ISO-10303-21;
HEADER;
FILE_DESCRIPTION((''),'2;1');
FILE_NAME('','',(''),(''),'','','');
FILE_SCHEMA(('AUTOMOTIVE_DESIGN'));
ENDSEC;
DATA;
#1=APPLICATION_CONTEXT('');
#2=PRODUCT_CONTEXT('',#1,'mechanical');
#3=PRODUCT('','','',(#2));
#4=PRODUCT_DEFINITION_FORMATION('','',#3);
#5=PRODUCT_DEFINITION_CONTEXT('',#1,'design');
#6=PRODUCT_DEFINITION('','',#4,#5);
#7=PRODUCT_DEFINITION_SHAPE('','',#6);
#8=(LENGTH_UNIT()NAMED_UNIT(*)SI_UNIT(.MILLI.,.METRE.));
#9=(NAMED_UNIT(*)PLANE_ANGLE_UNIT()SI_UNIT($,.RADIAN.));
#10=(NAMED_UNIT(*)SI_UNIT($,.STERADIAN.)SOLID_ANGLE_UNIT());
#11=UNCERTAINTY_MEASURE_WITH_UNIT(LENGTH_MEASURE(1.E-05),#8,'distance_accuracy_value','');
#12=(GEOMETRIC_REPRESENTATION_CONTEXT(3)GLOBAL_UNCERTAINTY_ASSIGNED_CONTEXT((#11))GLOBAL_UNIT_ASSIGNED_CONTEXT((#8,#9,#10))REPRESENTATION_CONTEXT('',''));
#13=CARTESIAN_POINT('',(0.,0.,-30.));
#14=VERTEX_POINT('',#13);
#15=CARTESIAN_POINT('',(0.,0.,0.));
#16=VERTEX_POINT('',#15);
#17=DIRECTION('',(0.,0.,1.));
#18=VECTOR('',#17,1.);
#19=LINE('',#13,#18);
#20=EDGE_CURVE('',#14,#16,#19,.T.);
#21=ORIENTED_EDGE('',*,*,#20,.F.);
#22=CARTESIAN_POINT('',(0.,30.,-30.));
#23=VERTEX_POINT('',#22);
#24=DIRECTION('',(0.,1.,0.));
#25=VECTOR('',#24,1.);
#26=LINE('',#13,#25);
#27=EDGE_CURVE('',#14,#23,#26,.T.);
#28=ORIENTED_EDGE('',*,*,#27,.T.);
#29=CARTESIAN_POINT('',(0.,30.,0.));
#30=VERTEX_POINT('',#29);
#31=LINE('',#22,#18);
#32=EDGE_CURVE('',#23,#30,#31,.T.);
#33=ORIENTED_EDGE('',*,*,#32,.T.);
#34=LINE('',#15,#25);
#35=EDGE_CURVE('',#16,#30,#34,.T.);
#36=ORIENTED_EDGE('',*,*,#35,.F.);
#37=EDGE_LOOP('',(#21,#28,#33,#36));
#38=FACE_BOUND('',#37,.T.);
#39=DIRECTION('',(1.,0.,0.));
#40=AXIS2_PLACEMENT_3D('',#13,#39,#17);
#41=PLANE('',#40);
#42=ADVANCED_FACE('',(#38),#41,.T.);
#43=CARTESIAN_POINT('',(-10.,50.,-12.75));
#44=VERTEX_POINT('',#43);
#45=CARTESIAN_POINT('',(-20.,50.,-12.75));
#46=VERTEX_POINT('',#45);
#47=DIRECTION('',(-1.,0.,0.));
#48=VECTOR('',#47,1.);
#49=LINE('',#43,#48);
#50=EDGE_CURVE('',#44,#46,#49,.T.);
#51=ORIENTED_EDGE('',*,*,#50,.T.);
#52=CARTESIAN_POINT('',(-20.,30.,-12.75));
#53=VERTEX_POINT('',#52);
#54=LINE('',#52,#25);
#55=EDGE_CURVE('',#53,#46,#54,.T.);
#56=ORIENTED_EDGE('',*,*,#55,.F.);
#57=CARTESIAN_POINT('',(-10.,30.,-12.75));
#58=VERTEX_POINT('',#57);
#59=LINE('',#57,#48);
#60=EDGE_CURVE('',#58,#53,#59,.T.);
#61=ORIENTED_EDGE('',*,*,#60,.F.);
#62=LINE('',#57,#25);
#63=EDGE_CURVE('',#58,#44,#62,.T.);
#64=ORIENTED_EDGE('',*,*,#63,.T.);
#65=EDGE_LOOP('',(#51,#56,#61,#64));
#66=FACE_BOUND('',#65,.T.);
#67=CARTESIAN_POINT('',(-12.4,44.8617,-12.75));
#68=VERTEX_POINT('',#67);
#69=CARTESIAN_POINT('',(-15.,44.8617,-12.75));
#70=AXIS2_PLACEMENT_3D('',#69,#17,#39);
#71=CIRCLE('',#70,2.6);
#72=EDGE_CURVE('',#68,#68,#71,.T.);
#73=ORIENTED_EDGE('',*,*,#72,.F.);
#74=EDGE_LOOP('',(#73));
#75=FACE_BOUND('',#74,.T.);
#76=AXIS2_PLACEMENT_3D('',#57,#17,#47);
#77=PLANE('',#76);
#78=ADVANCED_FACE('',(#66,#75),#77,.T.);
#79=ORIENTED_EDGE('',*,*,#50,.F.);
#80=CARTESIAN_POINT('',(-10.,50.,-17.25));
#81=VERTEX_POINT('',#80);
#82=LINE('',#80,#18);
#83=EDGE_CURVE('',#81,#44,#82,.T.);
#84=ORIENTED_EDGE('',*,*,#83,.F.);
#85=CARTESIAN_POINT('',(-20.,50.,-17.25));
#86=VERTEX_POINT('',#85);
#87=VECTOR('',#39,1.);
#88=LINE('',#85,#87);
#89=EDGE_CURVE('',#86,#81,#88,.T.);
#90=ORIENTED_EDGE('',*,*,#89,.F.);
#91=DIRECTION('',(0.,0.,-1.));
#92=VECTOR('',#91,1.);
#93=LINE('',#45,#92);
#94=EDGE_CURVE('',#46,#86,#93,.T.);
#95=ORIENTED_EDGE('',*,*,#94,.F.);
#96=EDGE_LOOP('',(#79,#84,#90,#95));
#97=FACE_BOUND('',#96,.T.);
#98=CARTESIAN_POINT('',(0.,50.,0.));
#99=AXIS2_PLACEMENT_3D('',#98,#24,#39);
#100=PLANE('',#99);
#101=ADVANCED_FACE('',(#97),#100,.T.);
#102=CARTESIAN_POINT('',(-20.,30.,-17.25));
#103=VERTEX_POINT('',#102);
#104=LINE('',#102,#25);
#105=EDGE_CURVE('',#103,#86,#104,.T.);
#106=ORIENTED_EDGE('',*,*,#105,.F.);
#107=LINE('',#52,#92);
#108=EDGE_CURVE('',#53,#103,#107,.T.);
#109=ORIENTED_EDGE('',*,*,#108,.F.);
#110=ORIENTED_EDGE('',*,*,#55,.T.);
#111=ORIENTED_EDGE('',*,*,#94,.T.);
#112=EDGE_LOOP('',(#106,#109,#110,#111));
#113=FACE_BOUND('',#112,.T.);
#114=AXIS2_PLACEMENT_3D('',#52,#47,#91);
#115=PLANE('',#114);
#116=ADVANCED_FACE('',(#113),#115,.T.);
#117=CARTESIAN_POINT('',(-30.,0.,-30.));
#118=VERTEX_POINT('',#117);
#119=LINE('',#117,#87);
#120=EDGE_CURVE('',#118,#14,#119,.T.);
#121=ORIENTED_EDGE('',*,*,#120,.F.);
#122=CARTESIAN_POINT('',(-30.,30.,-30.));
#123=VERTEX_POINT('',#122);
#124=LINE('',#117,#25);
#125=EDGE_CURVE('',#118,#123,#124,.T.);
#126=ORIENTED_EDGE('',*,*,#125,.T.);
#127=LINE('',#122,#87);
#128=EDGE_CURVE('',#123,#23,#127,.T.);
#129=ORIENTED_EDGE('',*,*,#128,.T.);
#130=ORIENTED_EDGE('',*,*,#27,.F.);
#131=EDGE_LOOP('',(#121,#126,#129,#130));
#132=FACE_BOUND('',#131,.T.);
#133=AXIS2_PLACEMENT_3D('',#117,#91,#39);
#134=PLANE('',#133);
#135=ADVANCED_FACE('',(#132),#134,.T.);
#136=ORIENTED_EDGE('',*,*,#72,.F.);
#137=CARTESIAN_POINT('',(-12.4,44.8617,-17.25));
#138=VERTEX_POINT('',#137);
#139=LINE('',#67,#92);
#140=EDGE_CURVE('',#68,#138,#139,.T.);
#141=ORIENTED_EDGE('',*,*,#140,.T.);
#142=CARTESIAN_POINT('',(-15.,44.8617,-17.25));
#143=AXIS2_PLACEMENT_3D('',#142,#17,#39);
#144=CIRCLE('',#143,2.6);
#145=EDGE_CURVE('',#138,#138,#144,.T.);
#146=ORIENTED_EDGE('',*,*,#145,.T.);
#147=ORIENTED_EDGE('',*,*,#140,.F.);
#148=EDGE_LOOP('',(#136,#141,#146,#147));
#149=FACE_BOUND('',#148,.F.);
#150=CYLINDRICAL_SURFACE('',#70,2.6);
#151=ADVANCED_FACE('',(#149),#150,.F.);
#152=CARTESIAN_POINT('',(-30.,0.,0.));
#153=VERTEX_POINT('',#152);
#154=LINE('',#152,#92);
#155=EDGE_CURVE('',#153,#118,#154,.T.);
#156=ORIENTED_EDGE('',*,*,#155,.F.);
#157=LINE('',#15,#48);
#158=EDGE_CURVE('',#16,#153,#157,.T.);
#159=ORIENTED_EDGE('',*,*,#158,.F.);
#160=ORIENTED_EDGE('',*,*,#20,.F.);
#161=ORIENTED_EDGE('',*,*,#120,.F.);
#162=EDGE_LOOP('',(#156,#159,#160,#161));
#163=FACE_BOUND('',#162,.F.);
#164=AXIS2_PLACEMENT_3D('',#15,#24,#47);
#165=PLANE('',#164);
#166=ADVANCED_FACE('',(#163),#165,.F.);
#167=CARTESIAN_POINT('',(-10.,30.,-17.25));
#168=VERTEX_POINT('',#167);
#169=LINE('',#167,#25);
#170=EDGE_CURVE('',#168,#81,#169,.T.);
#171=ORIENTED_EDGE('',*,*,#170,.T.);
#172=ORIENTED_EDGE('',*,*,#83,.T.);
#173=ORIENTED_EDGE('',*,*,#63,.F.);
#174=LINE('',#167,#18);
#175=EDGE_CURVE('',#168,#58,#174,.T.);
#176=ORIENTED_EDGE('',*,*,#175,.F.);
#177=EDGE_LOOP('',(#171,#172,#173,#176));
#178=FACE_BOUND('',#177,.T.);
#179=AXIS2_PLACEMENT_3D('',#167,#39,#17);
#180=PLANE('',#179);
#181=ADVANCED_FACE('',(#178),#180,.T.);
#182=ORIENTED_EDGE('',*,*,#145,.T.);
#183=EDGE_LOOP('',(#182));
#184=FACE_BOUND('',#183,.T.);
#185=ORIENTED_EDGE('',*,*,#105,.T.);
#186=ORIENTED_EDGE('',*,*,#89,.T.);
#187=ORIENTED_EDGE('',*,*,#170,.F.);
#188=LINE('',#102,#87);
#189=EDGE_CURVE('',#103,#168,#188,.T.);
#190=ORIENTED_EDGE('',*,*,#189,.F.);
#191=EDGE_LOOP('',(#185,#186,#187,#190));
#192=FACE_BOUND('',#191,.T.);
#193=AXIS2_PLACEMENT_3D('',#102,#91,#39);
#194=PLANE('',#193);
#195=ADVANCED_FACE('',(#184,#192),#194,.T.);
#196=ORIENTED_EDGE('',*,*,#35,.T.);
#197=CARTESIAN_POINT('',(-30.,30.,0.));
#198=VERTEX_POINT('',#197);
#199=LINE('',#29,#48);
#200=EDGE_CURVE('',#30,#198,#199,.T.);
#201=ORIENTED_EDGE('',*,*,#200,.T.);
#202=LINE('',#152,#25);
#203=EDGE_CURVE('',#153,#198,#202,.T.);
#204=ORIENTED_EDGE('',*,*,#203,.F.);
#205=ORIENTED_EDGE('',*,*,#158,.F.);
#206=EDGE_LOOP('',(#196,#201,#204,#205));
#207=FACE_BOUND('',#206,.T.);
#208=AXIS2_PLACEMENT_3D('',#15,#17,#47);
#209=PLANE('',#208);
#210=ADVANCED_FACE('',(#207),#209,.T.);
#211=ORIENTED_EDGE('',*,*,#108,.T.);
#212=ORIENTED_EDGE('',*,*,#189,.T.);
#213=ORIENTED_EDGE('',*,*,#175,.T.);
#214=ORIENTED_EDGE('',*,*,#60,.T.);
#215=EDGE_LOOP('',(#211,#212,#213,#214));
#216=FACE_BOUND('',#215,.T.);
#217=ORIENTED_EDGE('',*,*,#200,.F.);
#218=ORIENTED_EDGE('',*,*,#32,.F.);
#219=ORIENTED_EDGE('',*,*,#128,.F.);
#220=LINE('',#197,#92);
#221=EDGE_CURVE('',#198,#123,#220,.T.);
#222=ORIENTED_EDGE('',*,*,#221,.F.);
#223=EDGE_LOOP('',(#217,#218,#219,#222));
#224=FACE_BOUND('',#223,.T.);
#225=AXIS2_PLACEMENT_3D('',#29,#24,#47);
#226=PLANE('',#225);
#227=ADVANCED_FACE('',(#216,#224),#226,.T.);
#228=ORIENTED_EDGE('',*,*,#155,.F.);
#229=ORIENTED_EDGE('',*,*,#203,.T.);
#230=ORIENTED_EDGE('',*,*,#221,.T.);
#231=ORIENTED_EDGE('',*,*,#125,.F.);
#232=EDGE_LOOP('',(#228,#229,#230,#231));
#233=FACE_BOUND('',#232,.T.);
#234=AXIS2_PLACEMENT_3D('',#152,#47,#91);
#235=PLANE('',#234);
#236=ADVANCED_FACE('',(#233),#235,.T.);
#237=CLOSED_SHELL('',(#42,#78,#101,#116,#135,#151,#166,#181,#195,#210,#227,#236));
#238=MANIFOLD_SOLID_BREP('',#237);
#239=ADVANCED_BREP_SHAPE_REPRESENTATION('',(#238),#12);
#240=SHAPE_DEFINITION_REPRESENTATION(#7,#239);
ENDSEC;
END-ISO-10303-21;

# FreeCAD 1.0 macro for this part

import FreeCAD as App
import Part
import Sketcher


def add_polygon(sketch, points):
    """Adds a closed chain of lines whose ends are joined by coincident constraints."""
    first, n = sketch.GeometryCount, len(points)
    for a, b in zip(points, points[1:] + points[:1]):
        sketch.addGeometry(Part.LineSegment(App.Vector(*a, 0), App.Vector(*b, 0)), False)
    for i in range(n):
        sketch.addConstraint(Sketcher.Constraint("Coincident", first + i, 2, first + (i + 1) % n, 1))

doc = App.newDocument("Part")
params = doc.addObject("Spreadsheet::Sheet", "Params")
for row, (alias, value) in enumerate([
    ("sketch1_width", "30 mm"),
    ("pad1_length", "30 mm"),
    ("sketch2_width", "10 mm"),
    ("sketch2_height", "4.5 mm"),
    ("pad2_length", "20 mm"),
    ("sketch3_diameter", "5.2 mm"),
    ("pocket1_length", "20 mm"),
], start=1):
    params.set(f"A{row}", alias)
    params.set(f"B{row}", "=" + value)
    params.setAlias(f"B{row}", alias)

body = doc.addObject("PartDesign::Body", "Body")

# Sketch on XZ plane
sketch1 = body.newObject("Sketcher::SketchObject", "Sketch")
sketch1.AttachmentSupport = (doc.getObject("XZ_Plane"), [""])
sketch1.MapMode = "FlatFace"
add_polygon(sketch1, [(-30, 0), (0, 0), (0, -30), (-30, -30)])  # lines 0-3
sketch1.addConstraint(Sketcher.Constraint("Horizontal", 0))
sketch1.addConstraint(Sketcher.Constraint("Vertical", 1))
sketch1.addConstraint(Sketcher.Constraint("Horizontal", 2))
sketch1.addConstraint(Sketcher.Constraint("Vertical", 3))
sketch1.addConstraint(Sketcher.Constraint("Coincident", 0, 2, -1, 1))
sketch1.addConstraint(Sketcher.Constraint("Equal", 2, 1))
sketch1.addConstraint(Sketcher.Constraint("DistanceX", 0, 1, 0, 2, 30.0))
sketch1.setExpression("Constraints[10]", "Params.sketch1_width")
pad1 = body.newObject("PartDesign::Pad", "Pad")
pad1.Profile = sketch1
pad1.setExpression("Length", "Params.pad1_length")
pad1.Reversed = True

# Sketch on XZ plane
sketch2 = body.newObject("Sketcher::SketchObject", "Sketch001")
sketch2.AttachmentSupport = (doc.getObject("XZ_Plane"), [""])
sketch2.MapMode = "FlatFace"
sketch2.AttachmentOffset = App.Placement(App.Vector(0, 0, -30), App.Rotation())
add_polygon(sketch2, [(-10, -17.2), (-20, -17.2), (-20, -12.8), (-10, -12.8)])  # lines 0-3
sketch2.addConstraint(Sketcher.Constraint("Horizontal", 0))
sketch2.addConstraint(Sketcher.Constraint("Vertical", 1))
sketch2.addConstraint(Sketcher.Constraint("Horizontal", 2))
sketch2.addConstraint(Sketcher.Constraint("Vertical", 3))
sketch2.addConstraint(Sketcher.Constraint("DistanceX", 0, 2, 0, 1, 10.0))
sketch2.addConstraint(Sketcher.Constraint("DistanceY", 1, 1, 1, 2, 4.5))
sketch2.addConstraint(Sketcher.Constraint("DistanceX", 2, 2, -1, 1, 10.0))
sketch2.addConstraint(Sketcher.Constraint("DistanceY", 0, 2, -1, 1, 17.25))
sketch2.setExpression("Constraints[8]", "Params.sketch2_width")
sketch2.setExpression("Constraints[9]", "Params.sketch2_height")
pad2 = body.newObject("PartDesign::Pad", "Pad001")
pad2.Profile = sketch2
pad2.setExpression("Length", "Params.pad2_length")
pad2.Reversed = True

# Sketch on XY plane
sketch3 = body.newObject("Sketcher::SketchObject", "Sketch002")
sketch3.AttachmentSupport = (doc.getObject("XY_Plane"), [""])
sketch3.MapMode = "FlatFace"
sketch3.AttachmentOffset = App.Placement(App.Vector(0, 0, -12.75), App.Rotation())
sketch3.addGeometry(Part.Circle(App.Vector(-15, 44.9, 0), App.Vector(0, 0, 1), 2.6), False)
sketch3.addConstraint(Sketcher.Constraint("Diameter", 0, 5.2))
sketch3.addConstraint(Sketcher.Constraint("DistanceX", 0, 3, -1, 1, 15.0))
sketch3.addConstraint(Sketcher.Constraint("DistanceY", -1, 1, 0, 3, 44.8617))
sketch3.setExpression("Constraints[0]", "Params.sketch3_diameter")
pocket1 = body.newObject("PartDesign::Pocket", "Pocket")
pocket1.Profile = sketch3
pocket1.setExpression("Length", "Params.pocket1_length")

doc.recompute()
